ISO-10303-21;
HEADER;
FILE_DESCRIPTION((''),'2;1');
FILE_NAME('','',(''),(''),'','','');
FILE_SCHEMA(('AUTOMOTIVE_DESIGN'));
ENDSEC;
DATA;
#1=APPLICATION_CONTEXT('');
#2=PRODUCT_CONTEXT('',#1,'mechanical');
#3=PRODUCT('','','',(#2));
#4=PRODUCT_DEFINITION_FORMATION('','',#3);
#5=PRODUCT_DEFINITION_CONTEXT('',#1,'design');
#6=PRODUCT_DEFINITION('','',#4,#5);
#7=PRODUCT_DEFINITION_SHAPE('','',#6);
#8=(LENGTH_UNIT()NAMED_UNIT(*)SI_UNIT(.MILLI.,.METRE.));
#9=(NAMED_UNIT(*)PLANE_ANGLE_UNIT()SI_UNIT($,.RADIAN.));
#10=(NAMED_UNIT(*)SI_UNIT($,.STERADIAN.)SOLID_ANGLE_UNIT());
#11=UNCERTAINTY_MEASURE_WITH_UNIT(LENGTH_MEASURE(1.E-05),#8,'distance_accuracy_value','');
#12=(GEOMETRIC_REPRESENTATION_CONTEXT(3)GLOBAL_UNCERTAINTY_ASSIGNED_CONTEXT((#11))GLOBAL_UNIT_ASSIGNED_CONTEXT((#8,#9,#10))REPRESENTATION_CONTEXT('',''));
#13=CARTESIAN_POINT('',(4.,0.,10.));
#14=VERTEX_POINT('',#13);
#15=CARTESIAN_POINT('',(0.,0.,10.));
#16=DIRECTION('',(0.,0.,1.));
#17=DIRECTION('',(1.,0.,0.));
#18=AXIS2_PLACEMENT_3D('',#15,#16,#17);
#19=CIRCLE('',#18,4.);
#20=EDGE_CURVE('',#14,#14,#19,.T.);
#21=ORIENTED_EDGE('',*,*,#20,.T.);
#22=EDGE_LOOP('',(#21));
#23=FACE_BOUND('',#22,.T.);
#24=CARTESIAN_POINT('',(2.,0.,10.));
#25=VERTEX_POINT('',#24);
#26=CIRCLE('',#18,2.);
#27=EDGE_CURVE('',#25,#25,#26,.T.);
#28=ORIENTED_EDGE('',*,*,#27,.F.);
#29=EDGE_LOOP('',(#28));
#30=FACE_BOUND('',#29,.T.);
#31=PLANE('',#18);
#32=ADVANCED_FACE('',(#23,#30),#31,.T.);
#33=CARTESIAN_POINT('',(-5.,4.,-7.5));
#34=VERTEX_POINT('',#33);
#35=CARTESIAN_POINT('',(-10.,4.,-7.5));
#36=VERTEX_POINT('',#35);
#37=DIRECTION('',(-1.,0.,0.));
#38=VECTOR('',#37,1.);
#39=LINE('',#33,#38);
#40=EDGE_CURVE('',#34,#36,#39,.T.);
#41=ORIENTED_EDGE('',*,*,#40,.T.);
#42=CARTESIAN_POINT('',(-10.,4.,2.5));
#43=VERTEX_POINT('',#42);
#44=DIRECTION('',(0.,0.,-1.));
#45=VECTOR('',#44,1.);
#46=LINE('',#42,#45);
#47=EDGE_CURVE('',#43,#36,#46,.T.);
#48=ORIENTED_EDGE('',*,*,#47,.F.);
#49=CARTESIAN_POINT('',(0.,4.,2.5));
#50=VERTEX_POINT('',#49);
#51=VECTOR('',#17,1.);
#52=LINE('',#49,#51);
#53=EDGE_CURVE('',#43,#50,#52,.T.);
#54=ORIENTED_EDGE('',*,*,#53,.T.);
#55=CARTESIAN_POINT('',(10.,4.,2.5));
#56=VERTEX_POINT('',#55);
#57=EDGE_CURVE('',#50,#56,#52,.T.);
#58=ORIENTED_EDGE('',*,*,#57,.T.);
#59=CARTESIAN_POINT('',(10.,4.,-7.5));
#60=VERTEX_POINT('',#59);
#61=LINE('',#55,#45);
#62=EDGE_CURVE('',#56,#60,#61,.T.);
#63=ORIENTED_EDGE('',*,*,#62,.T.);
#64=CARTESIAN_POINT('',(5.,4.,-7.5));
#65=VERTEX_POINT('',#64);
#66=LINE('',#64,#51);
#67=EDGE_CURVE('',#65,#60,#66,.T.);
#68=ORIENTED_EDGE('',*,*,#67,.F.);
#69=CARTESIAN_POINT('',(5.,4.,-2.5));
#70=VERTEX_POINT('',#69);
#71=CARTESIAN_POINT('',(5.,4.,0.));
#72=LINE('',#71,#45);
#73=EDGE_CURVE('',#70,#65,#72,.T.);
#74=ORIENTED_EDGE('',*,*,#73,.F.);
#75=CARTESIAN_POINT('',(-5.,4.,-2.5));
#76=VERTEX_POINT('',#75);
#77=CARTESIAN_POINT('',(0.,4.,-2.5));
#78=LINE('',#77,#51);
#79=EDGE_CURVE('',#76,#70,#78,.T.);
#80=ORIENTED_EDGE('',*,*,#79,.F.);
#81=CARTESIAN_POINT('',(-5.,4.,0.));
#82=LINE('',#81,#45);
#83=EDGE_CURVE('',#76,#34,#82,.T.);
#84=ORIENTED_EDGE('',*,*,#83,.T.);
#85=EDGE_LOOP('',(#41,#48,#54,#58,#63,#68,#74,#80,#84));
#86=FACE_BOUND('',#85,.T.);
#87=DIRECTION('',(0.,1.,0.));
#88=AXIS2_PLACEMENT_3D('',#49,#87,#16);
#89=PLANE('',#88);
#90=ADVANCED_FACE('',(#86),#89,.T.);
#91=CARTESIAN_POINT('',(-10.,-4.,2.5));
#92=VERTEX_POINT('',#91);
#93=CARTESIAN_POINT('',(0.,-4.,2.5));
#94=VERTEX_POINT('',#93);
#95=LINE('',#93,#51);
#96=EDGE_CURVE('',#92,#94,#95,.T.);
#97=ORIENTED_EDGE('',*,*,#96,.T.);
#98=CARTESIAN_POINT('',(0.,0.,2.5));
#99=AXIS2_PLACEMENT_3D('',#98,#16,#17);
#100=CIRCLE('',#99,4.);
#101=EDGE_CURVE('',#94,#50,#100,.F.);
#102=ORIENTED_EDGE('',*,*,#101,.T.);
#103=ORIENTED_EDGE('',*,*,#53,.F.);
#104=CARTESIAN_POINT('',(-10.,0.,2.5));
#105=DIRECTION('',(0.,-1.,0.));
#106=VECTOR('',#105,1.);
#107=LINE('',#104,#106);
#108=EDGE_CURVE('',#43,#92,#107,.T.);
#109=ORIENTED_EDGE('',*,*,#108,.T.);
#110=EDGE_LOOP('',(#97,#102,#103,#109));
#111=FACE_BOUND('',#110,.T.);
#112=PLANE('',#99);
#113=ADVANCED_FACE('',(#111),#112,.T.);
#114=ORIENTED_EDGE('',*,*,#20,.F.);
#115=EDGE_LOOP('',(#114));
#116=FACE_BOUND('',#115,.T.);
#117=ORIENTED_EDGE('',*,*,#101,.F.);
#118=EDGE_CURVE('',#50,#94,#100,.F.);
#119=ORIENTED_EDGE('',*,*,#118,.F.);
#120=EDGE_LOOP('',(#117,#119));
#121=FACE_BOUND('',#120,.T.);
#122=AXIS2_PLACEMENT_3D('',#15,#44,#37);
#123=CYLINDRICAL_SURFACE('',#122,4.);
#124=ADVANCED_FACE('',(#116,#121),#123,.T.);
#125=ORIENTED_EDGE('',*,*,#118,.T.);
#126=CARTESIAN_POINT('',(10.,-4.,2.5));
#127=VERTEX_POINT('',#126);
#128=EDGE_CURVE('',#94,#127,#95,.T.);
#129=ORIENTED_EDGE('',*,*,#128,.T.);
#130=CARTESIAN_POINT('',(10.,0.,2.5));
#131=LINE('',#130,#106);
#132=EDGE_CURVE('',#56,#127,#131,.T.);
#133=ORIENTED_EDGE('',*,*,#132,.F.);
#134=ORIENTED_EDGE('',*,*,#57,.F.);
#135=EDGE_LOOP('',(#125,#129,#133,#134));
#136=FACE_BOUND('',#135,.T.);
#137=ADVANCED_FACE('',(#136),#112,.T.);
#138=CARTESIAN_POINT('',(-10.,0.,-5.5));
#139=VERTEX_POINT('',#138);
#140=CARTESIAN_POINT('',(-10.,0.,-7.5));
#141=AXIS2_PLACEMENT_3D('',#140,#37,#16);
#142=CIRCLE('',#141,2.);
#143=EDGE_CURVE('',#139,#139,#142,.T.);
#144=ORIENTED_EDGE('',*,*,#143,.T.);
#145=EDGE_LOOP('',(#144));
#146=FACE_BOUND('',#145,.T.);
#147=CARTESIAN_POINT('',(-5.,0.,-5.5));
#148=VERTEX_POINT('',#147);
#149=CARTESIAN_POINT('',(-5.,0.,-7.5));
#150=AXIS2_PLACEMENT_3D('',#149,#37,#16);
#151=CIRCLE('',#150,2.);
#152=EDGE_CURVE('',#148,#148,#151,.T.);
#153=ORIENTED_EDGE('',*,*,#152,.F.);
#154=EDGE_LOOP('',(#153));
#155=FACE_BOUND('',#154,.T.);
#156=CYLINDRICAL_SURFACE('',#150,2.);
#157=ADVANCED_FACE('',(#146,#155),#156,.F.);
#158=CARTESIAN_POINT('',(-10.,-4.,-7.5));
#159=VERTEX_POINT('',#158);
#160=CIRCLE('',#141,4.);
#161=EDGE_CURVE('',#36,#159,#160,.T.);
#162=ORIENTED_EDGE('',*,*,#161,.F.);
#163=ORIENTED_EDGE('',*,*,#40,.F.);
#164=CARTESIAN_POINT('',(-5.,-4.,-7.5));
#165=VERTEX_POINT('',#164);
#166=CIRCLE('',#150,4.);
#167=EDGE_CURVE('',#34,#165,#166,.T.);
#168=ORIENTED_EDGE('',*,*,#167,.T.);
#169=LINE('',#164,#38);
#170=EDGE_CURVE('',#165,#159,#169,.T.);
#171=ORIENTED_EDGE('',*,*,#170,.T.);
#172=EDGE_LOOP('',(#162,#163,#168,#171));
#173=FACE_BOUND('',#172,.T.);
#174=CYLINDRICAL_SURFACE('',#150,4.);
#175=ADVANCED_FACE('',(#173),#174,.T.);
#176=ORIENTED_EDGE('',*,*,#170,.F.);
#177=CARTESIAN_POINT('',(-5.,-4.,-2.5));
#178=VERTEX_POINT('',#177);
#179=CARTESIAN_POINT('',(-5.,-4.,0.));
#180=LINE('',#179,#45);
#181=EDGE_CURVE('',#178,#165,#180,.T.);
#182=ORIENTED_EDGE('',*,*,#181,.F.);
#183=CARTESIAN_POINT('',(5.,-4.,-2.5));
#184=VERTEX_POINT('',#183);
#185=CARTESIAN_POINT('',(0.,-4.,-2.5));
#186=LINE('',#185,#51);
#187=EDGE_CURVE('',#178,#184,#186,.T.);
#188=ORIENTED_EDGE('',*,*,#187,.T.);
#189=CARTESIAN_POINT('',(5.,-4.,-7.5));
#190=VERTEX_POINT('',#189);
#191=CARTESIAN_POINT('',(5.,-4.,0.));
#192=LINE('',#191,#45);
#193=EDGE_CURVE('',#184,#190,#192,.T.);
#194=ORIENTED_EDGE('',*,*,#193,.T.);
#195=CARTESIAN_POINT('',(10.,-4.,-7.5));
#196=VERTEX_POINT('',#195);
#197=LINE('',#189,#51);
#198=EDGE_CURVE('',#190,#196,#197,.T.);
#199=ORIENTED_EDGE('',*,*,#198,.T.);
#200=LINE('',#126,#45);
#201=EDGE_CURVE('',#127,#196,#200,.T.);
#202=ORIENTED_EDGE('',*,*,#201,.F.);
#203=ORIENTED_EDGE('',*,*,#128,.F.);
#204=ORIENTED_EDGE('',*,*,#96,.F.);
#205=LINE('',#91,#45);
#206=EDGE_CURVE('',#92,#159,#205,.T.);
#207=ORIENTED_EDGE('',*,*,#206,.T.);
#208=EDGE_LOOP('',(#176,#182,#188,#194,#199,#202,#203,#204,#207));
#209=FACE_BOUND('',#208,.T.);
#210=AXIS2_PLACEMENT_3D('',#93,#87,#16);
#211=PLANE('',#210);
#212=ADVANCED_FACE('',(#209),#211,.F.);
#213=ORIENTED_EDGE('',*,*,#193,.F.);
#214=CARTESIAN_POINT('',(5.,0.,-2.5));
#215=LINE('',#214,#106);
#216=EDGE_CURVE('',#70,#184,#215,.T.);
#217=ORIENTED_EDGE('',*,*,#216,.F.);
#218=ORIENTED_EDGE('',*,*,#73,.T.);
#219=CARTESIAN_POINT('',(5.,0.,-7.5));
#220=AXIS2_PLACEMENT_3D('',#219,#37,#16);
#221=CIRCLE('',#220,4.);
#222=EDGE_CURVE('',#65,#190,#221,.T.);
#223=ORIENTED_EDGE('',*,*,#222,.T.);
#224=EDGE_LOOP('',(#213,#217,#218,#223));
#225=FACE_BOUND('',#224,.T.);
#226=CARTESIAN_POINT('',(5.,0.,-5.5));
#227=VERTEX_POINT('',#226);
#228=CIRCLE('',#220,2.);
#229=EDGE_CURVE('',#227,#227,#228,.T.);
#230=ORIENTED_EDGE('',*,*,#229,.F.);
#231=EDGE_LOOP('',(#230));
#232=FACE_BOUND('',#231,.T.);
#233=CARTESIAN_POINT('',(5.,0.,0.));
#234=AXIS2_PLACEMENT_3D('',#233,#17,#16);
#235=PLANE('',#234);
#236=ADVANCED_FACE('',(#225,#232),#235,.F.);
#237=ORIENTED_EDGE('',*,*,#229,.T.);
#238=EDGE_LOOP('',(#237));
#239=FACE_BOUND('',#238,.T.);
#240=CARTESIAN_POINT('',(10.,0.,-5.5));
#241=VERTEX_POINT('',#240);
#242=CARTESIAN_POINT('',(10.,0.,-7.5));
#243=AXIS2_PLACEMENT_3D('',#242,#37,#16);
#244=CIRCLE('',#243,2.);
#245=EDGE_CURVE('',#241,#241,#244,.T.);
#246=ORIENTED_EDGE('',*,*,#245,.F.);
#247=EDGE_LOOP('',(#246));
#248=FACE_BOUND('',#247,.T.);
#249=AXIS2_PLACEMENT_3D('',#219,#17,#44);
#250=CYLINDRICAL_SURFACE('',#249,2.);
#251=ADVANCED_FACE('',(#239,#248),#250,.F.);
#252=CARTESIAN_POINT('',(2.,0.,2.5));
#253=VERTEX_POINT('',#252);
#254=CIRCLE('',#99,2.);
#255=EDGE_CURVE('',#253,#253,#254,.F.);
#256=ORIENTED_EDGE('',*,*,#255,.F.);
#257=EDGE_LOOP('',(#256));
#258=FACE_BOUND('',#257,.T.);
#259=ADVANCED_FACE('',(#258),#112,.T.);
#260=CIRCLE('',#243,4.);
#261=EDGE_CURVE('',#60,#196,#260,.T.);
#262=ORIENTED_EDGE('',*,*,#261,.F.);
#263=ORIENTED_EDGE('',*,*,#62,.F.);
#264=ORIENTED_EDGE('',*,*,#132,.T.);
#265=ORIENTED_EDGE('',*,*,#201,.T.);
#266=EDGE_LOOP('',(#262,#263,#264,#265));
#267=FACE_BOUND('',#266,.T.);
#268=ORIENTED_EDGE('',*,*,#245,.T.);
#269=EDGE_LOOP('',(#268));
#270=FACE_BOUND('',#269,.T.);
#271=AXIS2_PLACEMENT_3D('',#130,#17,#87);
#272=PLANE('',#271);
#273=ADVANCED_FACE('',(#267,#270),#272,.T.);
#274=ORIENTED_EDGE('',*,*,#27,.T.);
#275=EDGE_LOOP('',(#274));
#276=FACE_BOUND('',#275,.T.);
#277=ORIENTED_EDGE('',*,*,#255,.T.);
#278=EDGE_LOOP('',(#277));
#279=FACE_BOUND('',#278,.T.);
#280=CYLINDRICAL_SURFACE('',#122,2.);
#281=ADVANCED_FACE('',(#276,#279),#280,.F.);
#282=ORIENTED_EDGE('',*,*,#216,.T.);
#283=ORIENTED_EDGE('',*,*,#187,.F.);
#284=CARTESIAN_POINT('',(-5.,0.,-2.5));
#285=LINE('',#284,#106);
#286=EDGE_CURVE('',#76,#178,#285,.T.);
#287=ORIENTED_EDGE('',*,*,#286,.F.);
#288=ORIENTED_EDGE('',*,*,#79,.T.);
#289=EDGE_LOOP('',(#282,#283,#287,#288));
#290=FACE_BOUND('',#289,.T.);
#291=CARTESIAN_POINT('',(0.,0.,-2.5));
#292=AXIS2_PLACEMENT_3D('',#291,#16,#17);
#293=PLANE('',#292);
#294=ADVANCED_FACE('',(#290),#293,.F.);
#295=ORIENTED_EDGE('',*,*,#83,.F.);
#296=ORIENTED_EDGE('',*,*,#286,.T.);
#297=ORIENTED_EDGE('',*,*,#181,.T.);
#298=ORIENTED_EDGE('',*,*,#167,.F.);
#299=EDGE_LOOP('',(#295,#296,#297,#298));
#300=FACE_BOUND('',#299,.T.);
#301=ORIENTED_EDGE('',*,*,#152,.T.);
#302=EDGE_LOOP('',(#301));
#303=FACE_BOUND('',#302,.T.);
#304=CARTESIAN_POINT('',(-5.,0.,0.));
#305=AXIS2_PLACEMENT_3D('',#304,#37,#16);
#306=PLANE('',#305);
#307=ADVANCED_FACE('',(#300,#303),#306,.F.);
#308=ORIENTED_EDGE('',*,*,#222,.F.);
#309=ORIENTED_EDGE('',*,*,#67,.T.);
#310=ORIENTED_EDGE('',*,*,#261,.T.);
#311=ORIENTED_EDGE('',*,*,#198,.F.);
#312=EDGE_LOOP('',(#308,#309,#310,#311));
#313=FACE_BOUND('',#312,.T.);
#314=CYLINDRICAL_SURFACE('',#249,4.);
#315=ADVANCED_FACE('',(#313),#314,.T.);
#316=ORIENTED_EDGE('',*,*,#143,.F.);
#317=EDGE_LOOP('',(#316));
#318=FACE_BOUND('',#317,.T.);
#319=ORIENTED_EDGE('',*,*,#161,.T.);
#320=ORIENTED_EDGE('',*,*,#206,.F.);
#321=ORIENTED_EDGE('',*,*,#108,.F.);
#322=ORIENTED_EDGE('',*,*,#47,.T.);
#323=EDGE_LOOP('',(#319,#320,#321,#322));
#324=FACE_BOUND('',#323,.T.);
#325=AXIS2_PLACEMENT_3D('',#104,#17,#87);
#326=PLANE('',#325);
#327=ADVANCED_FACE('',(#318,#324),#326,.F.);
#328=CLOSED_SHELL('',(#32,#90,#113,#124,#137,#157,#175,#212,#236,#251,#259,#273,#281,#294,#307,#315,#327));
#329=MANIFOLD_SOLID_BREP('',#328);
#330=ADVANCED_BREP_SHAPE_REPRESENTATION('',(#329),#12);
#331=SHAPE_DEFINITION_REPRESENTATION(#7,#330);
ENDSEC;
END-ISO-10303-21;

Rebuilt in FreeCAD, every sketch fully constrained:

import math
import FreeCAD as App
import Part
import Sketcher

V = App.Vector
Q = App.Units.Quantity


def add_polygon(sketch, points):
    """Adds a closed chain of lines whose ends are joined by coincident constraints."""
    first, n = sketch.GeometryCount, len(points)
    for a, b in zip(points, points[1:] + points[:1]):
        sketch.addGeometry(Part.LineSegment(App.Vector(*a, 0), App.Vector(*b, 0)), False)
    for i in range(n):
        sketch.addConstraint(Sketcher.Constraint("Coincident", first + i, 2, first + (i + 1) % n, 1))

doc = App.newDocument("Part")
body = doc.addObject("PartDesign::Body", "Body")

# Sketch on XY plane
sketch1 = body.newObject("Sketcher::SketchObject", "Sketch")
sketch1.AttachmentSupport = (doc.getObject("XY_Plane"), [""])
sketch1.MapMode = "FlatFace"
add_polygon(sketch1, [(10, 4), (-10, 4), (-10, -4), (10, -4)])  # lines 0-3
sketch1.addConstraint([
    Sketcher.Constraint("Horizontal", 0),
    Sketcher.Constraint("Vertical", 1),
    Sketcher.Constraint("Horizontal", 2),
    Sketcher.Constraint("Vertical", 3),
    Sketcher.Constraint("Symmetric", 0, 2, 2, 2, -1, 1),
    Sketcher.Constraint("DistanceX", 0, 2, 0, 1, Q("20 mm")),
    Sketcher.Constraint("DistanceY", 1, 2, 1, 1, Q("8 mm")),
])
pad1 = body.newObject("PartDesign::Pad", "Pad")
pad1.Profile = sketch1
pad1.Length = 5
pad1.Midplane = True

# Sketch on XY plane
sketch2 = body.newObject("Sketcher::SketchObject", "Sketch001")
sketch2.AttachmentSupport = (doc.getObject("XY_Plane"), [""])
sketch2.MapMode = "FlatFace"
sketch2.addGeometry([
    Part.Circle(V(0, 0, 0), V(0, 0, 1), 4),
    Part.Circle(V(0, 0, 0), V(0, 0, 1), 2),
], False)
sketch2.addConstraint([
    Sketcher.Constraint("Coincident", 0, 3, -1, 1),
    Sketcher.Constraint("Coincident", 1, 3, -1, 1),
    Sketcher.Constraint("Diameter", 0, Q("8 mm")),
    Sketcher.Constraint("Diameter", 1, Q("4 mm")),
])
pad2 = body.newObject("PartDesign::Pad", "Pad001")
pad2.Profile = sketch2
pad2.Length = 10

# Sketch on YZ plane
sketch3 = body.newObject("Sketcher::SketchObject", "Sketch002")
sketch3.AttachmentSupport = (doc.getObject("YZ_Plane"), [""])
sketch3.MapMode = "FlatFace"
sketch3.AttachmentOffset = App.Placement(V(0, 0, -10), App.Rotation())
sketch3.addGeometry([
    Part.LineSegment(V(4, -2.5, 0), V(4, -7.5, 0)),  # 0
    Part.ArcOfCircle(Part.Circle(V(0, -7.5, 0), V(0, 0, 1), 4), math.radians(180), math.radians(360)),  # 1
    Part.LineSegment(V(-4, -7.5, 0), V(-4, -2.5, 0)),  # 2
    Part.LineSegment(V(-4, -2.5, 0), V(4, -2.5, 0)),  # 3
    Part.ArcOfCircle(Part.Circle(V(0, -7.5, 0), V(0, 0, 1), 2), math.radians(90), math.radians(180)),  # 4
    Part.ArcOfCircle(Part.Circle(V(0, -7.5, 0), V(0, 0, 1), 2), math.radians(180), math.radians(360)),  # 5
    Part.ArcOfCircle(Part.Circle(V(0, -7.5, 0), V(0, 0, 1), 2), math.radians(0), math.radians(90)),  # 6
], False)
sketch3.addConstraint([
    Sketcher.Constraint("Tangent", 0, 2, 1, 2),
    Sketcher.Constraint("Tangent", 1, 1, 2, 1),
    Sketcher.Constraint("Coincident", 2, 2, 3, 1),
    Sketcher.Constraint("Coincident", 3, 2, 0, 1),
    Sketcher.Constraint("Tangent", 4, 2, 5, 1),
    Sketcher.Constraint("Tangent", 5, 2, 6, 1),
    Sketcher.Constraint("Tangent", 6, 2, 4, 1),
    Sketcher.Constraint("Vertical", 0),
    Sketcher.Constraint("Vertical", 2),
    Sketcher.Constraint("Horizontal", 3),
    Sketcher.Constraint("Coincident", 4, 3, 1, 3),
    Sketcher.Constraint("Symmetric", 4, 2, 5, 2, -2),
    Sketcher.Constraint("PointOnObject", 6, 2, -2),
    Sketcher.Constraint("Horizontal", 1, 1, 4, 2),
    Sketcher.Constraint("Radius", 1, Q("4 mm")),
    Sketcher.Constraint("Radius", 4, Q("2 mm")),
    Sketcher.Constraint("DistanceY", 0, 2, 0, 1, Q("5 mm")),
    Sketcher.Constraint("DistanceY", 1, 3, -1, 1, Q("7.5 mm")),
])
pad3 = body.newObject("PartDesign::Pad", "Pad002")
pad3.Profile = sketch3
pad3.Length = 5
doc.recompute()

mirrored = body.newObject("PartDesign::Mirrored", "Mirrored")
mirrored.Originals = [pad3]
mirrored.MirrorPlane = (doc.getObject("YZ_Plane"), [""])
body.Tip = mirrored

doc.recompute()
